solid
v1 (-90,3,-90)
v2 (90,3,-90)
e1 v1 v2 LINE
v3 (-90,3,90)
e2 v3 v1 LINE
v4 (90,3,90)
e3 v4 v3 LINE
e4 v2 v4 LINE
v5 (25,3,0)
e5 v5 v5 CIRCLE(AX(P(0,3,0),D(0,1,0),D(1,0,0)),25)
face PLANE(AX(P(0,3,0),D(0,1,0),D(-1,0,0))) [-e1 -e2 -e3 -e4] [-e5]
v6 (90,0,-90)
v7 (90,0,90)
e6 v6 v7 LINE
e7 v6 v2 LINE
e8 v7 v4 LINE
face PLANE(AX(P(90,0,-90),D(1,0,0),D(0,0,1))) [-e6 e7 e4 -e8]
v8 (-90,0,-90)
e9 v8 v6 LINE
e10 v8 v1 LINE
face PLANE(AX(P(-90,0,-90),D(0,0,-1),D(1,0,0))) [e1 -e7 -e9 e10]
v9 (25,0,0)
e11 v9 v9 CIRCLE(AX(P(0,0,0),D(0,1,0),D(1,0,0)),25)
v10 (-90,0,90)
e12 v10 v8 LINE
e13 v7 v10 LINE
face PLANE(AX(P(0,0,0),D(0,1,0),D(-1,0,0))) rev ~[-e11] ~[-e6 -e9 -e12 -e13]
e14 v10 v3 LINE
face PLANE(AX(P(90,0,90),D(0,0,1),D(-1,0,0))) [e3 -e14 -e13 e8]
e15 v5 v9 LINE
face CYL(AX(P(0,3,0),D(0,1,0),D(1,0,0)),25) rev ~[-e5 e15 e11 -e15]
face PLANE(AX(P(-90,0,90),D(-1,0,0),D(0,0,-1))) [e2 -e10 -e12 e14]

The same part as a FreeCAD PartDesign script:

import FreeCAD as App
import Part
import Sketcher

V = App.Vector
Q = App.Units.Quantity


def add_polygon(sketch, points):
    """Adds a closed chain of lines whose ends are joined by coincident constraints."""
    first, n = sketch.GeometryCount, len(points)
    for a, b in zip(points, points[1:] + points[:1]):
        sketch.addGeometry(Part.LineSegment(App.Vector(*a, 0), App.Vector(*b, 0)), False)
    for i in range(n):
        sketch.addConstraint(Sketcher.Constraint("Coincident", first + i, 2, first + (i + 1) % n, 1))

doc = App.newDocument("Part")
body = doc.addObject("PartDesign::Body", "Body")

# Sketch on XZ plane
sketch1 = doc.addObject("Sketcher::SketchObject", "Sketch")
body.addObject(sketch1)
sketch1.AttachmentSupport = (doc.XZ_Plane, [""])
sketch1.MapMode = "FlatFace"
add_polygon(sketch1, [(-90, 90), (90, 90), (90, -90), (-90, -90)])  # lines 0-3
sketch1.addConstraint(Sketcher.Constraint("Horizontal", 0))
sketch1.addConstraint(Sketcher.Constraint("Vertical", 1))
sketch1.addConstraint(Sketcher.Constraint("Horizontal", 2))
sketch1.addConstraint(Sketcher.Constraint("Vertical", 3))
sketch1.addConstraint(Sketcher.Constraint("Symmetric", 0, 2, 2, 2, -1, 1))
sketch1.addConstraint(Sketcher.Constraint("Equal", 2, 1))
sketch1.addConstraint(Sketcher.Constraint("DistanceX", 0, 1, 0, 2, Q("180 mm")))
pad1 = doc.addObject("PartDesign::Pad", "Pad")
body.addObject(pad1)
pad1.Profile = sketch1
pad1.Length = 3
pad1.Reversed = True

# Sketch on XZ plane
sketch2 = doc.addObject("Sketcher::SketchObject", "Sketch001")
body.addObject(sketch2)
sketch2.AttachmentSupport = (doc.XZ_Plane, [""])
sketch2.MapMode = "FlatFace"
sketch2.AttachmentOffset = App.Placement(V(0, 0, -3), App.Rotation())
sketch2.addGeometry(Part.Circle(V(0, 0, 0), V(0, 0, 1), 25), False)
sketch2.addConstraint(Sketcher.Constraint("Coincident", 0, 3, -1, 1))
sketch2.addConstraint(Sketcher.Constraint("Diameter", 0, Q("50 mm")))
pocket1 = doc.addObject("PartDesign::Pocket", "Pocket")
body.addObject(pocket1)
pocket1.Profile = sketch2
pocket1.Type = "ThroughAll"
pocket1.Reversed = True

doc.recompute()
